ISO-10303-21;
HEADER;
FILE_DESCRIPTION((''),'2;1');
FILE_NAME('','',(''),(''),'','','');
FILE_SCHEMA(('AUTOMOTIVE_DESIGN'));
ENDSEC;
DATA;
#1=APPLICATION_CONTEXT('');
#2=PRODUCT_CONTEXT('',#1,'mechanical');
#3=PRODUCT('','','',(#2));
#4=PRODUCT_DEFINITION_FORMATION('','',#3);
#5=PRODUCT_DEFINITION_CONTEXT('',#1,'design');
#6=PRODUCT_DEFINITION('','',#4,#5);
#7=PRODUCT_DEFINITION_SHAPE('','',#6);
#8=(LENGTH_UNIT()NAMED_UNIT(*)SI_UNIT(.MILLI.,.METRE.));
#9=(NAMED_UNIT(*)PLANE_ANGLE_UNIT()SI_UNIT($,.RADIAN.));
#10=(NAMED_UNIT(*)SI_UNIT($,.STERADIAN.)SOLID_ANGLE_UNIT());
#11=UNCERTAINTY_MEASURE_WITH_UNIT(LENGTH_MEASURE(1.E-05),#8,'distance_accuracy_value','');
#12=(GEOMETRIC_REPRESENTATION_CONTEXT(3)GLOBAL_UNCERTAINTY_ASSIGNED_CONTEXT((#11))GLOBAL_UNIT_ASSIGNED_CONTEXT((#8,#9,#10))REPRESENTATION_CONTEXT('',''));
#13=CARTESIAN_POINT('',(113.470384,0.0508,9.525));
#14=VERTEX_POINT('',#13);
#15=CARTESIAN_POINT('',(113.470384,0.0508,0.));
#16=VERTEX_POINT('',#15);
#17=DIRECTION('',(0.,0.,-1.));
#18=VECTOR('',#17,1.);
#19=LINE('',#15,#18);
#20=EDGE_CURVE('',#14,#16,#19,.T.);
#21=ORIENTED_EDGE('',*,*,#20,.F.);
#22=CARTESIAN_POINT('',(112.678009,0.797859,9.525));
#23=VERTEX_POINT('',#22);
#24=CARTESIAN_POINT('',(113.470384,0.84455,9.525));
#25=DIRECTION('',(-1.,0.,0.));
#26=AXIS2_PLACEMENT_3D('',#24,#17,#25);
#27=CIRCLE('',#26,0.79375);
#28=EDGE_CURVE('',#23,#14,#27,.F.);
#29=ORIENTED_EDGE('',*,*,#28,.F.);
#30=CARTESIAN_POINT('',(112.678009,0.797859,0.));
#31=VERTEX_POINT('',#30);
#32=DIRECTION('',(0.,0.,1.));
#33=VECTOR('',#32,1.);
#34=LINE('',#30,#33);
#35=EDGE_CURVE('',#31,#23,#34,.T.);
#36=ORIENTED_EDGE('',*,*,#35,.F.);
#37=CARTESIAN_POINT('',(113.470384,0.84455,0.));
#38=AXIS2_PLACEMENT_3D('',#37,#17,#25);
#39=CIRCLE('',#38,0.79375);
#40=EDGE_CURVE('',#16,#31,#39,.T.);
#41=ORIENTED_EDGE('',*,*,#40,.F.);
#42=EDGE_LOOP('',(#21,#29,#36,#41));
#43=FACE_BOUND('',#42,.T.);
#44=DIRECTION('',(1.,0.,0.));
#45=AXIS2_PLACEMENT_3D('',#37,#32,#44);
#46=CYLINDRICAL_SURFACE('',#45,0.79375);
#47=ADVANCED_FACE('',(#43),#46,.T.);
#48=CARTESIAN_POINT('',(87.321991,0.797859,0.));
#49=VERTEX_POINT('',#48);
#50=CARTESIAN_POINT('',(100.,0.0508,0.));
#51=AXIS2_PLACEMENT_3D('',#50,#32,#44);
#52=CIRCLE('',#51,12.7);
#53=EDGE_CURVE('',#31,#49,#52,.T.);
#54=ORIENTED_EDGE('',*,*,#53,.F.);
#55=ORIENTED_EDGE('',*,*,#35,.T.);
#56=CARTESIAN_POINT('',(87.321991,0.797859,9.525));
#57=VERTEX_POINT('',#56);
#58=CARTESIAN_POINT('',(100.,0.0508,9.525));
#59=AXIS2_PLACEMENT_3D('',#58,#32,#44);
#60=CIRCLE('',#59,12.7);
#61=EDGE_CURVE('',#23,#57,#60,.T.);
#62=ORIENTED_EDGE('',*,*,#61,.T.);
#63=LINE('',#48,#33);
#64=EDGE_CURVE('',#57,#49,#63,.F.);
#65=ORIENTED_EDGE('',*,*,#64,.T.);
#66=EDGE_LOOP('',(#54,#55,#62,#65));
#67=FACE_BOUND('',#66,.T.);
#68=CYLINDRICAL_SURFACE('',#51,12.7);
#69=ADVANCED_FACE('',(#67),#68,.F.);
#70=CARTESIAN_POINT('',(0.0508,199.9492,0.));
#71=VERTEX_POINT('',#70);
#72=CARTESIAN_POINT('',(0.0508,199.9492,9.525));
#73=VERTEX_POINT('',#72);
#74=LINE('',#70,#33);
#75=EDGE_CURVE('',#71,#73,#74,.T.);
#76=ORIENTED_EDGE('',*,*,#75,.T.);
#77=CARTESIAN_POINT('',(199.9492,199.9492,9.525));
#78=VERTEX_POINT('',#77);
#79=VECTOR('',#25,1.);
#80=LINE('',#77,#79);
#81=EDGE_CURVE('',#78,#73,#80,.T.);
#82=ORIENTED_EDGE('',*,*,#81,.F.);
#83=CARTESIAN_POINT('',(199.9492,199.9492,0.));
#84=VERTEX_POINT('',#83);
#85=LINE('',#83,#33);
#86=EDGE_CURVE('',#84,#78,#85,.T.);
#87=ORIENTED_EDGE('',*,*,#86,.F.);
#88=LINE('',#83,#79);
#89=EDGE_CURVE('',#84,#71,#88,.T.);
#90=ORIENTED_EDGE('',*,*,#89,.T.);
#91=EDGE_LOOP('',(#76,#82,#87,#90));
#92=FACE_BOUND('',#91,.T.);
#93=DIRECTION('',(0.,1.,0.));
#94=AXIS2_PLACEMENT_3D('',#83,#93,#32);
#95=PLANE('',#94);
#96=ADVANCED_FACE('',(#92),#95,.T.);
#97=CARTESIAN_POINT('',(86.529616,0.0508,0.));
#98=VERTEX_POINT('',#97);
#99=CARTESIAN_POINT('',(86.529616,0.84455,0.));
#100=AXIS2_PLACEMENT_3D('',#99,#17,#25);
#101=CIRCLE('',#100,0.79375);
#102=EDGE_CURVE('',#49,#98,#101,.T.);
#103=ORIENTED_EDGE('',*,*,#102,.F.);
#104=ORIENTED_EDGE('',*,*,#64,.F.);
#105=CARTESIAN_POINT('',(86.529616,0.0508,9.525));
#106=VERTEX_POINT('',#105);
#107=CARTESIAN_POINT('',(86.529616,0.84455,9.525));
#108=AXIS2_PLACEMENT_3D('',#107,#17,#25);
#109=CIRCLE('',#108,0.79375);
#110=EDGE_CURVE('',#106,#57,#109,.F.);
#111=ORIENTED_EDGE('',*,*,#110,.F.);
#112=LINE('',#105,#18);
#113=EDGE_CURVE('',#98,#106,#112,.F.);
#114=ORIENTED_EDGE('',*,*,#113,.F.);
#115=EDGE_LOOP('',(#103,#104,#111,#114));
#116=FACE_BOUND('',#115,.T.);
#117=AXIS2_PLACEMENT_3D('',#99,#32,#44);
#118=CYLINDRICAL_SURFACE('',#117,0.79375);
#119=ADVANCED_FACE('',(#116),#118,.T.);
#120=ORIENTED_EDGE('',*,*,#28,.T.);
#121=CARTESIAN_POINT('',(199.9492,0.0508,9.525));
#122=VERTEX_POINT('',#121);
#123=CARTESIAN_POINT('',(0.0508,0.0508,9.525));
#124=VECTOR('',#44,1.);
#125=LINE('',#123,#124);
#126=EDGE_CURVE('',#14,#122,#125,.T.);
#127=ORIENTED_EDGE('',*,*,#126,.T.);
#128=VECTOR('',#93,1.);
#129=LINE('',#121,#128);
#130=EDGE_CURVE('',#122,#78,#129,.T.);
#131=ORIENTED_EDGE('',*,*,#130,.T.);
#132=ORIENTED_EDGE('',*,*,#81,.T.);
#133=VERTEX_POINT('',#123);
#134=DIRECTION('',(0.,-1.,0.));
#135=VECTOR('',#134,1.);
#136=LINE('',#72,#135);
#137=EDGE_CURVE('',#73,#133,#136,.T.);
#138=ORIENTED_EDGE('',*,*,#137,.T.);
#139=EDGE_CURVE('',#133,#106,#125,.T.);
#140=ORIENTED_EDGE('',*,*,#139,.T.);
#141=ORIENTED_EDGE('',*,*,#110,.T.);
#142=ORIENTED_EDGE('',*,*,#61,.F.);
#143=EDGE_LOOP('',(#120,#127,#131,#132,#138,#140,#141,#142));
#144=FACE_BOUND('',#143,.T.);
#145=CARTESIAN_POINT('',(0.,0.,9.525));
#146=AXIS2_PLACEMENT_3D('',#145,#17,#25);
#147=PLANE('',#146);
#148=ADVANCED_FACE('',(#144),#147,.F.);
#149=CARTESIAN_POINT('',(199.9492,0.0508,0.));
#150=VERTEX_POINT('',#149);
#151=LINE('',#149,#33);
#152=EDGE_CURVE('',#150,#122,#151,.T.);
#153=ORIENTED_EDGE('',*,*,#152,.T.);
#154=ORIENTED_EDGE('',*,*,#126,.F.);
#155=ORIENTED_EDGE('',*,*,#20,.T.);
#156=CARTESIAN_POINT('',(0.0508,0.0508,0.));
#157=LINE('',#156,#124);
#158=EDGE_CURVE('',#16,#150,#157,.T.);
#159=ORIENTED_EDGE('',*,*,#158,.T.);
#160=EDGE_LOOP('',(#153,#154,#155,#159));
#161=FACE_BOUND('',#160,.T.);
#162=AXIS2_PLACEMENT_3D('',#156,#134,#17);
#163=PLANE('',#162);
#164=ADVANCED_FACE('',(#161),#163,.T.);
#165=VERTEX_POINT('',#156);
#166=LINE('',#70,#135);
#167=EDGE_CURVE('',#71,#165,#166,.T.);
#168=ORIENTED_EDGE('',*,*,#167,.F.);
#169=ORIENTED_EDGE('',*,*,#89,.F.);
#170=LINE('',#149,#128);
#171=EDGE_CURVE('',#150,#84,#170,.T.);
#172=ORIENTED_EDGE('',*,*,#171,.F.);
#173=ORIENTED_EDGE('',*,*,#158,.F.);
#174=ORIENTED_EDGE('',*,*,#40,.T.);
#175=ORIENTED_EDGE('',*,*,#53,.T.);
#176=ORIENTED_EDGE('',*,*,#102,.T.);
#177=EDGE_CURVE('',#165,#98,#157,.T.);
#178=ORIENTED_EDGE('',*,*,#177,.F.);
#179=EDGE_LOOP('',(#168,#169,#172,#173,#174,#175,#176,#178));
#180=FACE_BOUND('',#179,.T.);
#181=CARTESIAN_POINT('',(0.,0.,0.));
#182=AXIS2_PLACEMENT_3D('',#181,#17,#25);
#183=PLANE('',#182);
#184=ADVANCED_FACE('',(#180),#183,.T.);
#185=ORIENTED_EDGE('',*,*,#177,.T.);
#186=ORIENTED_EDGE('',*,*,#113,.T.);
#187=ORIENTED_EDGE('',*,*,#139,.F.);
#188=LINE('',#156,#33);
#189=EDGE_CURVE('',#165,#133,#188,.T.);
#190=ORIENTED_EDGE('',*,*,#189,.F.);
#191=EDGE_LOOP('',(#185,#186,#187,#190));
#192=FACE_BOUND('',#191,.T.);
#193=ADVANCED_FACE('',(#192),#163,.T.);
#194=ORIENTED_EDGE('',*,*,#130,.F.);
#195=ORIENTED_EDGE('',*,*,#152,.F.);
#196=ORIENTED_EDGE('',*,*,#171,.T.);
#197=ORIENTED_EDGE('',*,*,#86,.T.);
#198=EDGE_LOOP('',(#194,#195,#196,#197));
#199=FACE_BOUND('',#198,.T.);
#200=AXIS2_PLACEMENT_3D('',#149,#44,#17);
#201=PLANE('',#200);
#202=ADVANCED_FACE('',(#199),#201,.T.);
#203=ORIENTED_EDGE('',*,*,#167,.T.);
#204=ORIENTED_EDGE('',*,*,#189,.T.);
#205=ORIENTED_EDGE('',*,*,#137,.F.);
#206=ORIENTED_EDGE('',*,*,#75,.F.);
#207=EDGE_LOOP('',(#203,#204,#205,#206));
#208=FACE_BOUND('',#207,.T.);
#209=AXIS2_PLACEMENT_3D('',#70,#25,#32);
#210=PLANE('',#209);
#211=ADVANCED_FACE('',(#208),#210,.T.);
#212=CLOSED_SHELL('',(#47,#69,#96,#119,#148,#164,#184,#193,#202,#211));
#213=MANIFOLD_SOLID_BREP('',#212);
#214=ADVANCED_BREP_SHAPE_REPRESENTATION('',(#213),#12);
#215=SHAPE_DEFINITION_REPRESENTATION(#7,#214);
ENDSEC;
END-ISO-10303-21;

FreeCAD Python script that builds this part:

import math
import FreeCAD as App
import Part
import Sketcher

V = App.Vector
Q = App.Units.Quantity


def edges_at(feature, points):
    """Names of the edges that pass closest to the given points."""
    edges = feature.Shape.Edges
    near = lambda p: min(range(len(edges)), key=lambda i: edges[i].distToShape(Part.Vertex(*p))[0])
    return sorted({f"Edge{near(p) + 1}" for p in points})


def add_polygon(sketch, points):
    """Adds a closed chain of lines whose ends are joined by coincident constraints."""
    first, n = sketch.GeometryCount, len(points)
    for a, b in zip(points, points[1:] + points[:1]):
        sketch.addGeometry(Part.LineSegment(App.Vector(*a, 0), App.Vector(*b, 0)), False)
    for i in range(n):
        sketch.addConstraint(Sketcher.Constraint("Coincident", first + i, 2, first + (i + 1) % n, 1))

doc = App.newDocument("Part")
body = doc.addObject("PartDesign::Body", "Body")

# Sketch on XY plane
sketch1 = body.newObject("Sketcher::SketchObject", "Sketch")
sketch1.AttachmentSupport = (doc.getObject("XY_Plane"), [""])
sketch1.MapMode = "FlatFace"
add_polygon(sketch1, [(0, 200), (0, 0), (200, 0), (200, 200)])  # lines 0-3
sketch1.addConstraint(Sketcher.Constraint("Vertical", 0))
sketch1.addConstraint(Sketcher.Constraint("Horizontal", 1))
sketch1.addConstraint(Sketcher.Constraint("Vertical", 2))
sketch1.addConstraint(Sketcher.Constraint("Horizontal", 3))
sketch1.addConstraint(Sketcher.Constraint("Coincident", 0, 2, -1, 1))
sketch1.addConstraint(Sketcher.Constraint("Equal", 3, 0))
sketch1.addConstraint(Sketcher.Constraint("DistanceX", 1, 1, 1, 2, 200.0))
pad1 = body.newObject("PartDesign::Pad", "Pad")
pad1.Profile = sketch1
pad1.Length = Q("0.375 in")

# Sketch on XY plane
sketch2 = body.newObject("Sketcher::SketchObject", "Sketch001")
sketch2.AttachmentSupport = (doc.getObject("XY_Plane"), [""])
sketch2.MapMode = "FlatFace"
sketch2.AttachmentOffset = App.Placement(V(0, 0, 0.375 * 25.4), App.Rotation())
add_polygon(sketch2, [(0, 200), (0, 0), (200, 0), (200, 200)])  # lines 0-3
add_polygon(sketch2, [(200, 0), (0, 0), (0, 200), (200, 200)])  # lines 4-7
sketch2.addConstraint(Sketcher.Constraint("Vertical", 0))
sketch2.addConstraint(Sketcher.Constraint("Horizontal", 1))
sketch2.addConstraint(Sketcher.Constraint("Vertical", 2))
sketch2.addConstraint(Sketcher.Constraint("Horizontal", 3))
sketch2.addConstraint(Sketcher.Constraint("Horizontal", 4))
sketch2.addConstraint(Sketcher.Constraint("Vertical", 5))
sketch2.addConstraint(Sketcher.Constraint("Horizontal", 6))
sketch2.addConstraint(Sketcher.Constraint("Vertical", 7))
sketch2.addConstraint(Sketcher.Constraint("Coincident", 0, 2, -1, 1))
sketch2.addConstraint(Sketcher.Constraint("Equal", 3, 0))
sketch2.addConstraint(Sketcher.Constraint("Equal", 6, 5))
sketch2.addConstraint(Sketcher.Constraint("DistanceX", -1, 1, 4, 2, Q("0.002 in")))
sketch2.addConstraint(Sketcher.Constraint("DistanceY", -1, 1, 4, 2, Q("0.002 in")))
sketch2.addConstraint(Sketcher.Constraint("DistanceY", 5, 2, 3, 2, Q("0.002 in")))
sketch2.addConstraint(Sketcher.Constraint("DistanceX", 1, 1, 1, 2, 200.0))
pocket1 = body.newObject("PartDesign::Pocket", "Pocket")
pocket1.Profile = sketch2
pocket1.Type = "ThroughAll"

# Sketch on XY plane
sketch3 = body.newObject("Sketcher::SketchObject", "Sketch002")
sketch3.AttachmentSupport = (doc.getObject("XY_Plane"), [""])
sketch3.MapMode = "FlatFace"
sketch3.AttachmentOffset = App.Placement(V(0, 0, 0.375 * 25.4), App.Rotation())
sketch3.addGeometry(Part.LineSegment(V(87, 0, 0), V(113, 0, 0)), False)
sketch3.addGeometry(Part.ArcOfCircle(Part.Circle(V(100, 0, 0), V(0, 0, 1), 13), math.radians(0), math.radians(180)), False)
sketch3.addConstraint(Sketcher.Constraint("Coincident", 0, 1, 1, 2))
sketch3.addConstraint(Sketcher.Constraint("Coincident", 1, 1, 0, 2))
sketch3.addConstraint(Sketcher.Constraint("Horizontal", 0))
sketch3.addConstraint(Sketcher.Constraint("Horizontal", 1, 3, 0, 1))
sketch3.addConstraint(Sketcher.Constraint("Radius", 1, Q("0.5 in")))
sketch3.addConstraint(Sketcher.Constraint("DistanceY", -1, 1, 1, 3, Q("0.002 in")))
sketch3.addConstraint(Sketcher.Constraint("DistanceX", -1, 1, 1, 3, 100.0))
pocket2 = body.newObject("PartDesign::Pocket", "Pocket001")
pocket2.Profile = sketch3
pocket2.Length = Q("0.375 in")
doc.recompute()

fillet = body.newObject("PartDesign::Fillet", "Fillet")
fillet.Base = (pocket2, edges_at(pocket2, [(87.3, 0.051, 4.763), (112.7, 0.051, 4.763)]))
fillet.Radius = Q("0.03125 in")

doc.recompute()
